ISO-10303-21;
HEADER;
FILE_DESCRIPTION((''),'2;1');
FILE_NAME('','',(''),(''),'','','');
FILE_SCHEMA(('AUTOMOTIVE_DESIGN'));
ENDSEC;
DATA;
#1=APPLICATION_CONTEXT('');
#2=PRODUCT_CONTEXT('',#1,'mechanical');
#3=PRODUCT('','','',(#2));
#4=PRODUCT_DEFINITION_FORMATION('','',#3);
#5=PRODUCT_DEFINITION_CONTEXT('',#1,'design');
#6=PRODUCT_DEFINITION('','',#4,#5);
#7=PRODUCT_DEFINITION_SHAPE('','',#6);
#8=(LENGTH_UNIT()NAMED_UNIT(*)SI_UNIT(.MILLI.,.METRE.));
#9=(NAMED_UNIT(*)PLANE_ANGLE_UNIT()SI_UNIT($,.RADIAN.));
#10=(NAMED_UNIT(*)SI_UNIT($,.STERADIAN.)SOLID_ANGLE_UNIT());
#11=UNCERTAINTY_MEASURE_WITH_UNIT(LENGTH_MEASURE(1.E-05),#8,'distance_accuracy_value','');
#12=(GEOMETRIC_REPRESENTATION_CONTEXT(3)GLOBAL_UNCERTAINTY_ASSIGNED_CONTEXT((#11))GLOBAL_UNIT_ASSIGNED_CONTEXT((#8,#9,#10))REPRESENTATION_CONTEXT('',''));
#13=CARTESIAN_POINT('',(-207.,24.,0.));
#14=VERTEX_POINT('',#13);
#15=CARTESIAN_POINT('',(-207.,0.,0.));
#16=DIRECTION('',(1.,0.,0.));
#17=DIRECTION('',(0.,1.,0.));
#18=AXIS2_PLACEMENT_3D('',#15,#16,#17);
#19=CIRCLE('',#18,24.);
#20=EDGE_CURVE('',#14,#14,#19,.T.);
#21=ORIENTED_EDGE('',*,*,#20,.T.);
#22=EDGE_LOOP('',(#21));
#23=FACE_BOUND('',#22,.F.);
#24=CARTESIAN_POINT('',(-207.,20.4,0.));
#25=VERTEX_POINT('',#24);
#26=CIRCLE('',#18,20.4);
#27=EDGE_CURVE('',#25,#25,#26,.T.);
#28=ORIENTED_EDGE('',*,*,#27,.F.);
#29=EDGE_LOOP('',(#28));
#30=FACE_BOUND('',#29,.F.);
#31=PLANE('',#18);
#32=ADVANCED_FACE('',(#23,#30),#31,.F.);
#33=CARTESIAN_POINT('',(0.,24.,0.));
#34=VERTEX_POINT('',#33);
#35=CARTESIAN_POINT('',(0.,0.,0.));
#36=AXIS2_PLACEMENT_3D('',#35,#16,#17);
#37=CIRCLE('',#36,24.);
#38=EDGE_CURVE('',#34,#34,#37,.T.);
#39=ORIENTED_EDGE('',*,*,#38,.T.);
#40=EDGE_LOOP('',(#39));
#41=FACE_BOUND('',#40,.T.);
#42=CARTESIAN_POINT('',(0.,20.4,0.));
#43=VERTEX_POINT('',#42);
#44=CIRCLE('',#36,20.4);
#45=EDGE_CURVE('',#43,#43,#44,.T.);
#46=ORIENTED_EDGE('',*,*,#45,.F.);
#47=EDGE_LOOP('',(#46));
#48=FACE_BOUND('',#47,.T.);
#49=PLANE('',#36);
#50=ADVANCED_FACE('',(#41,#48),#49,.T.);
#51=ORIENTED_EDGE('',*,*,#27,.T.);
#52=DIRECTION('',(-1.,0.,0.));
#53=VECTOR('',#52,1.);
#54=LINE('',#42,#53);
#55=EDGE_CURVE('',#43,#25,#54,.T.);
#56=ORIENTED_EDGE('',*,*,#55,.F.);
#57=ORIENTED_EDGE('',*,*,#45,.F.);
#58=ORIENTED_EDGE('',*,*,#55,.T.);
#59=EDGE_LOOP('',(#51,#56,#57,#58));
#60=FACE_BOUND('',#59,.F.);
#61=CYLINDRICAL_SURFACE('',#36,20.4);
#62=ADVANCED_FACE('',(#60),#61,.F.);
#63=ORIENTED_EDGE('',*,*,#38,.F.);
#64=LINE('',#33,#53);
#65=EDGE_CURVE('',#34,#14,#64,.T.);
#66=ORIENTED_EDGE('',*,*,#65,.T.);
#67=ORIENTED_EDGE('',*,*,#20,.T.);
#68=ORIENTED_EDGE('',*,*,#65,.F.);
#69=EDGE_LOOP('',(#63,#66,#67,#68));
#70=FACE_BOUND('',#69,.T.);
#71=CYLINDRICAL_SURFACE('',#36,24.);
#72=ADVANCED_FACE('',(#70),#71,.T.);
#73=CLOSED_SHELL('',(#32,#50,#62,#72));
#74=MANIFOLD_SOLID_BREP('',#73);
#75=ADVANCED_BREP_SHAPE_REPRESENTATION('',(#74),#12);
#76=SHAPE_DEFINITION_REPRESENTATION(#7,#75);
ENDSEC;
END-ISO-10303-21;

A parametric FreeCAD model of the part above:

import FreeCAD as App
import Part
import Sketcher
from FreeCAD import Vector
Q = App.Units.Quantity

doc = App.newDocument("Part")
params = doc.addObject("Spreadsheet::Sheet", "Params")
for row, (alias, value) in enumerate([
    ("sketch1_diameter", "48 mm"),
    ("sketch1_diameter2", "40.8 mm"),
    ("pad1_length", "207 mm"),
], start=1):
    params.set(f"A{row}", alias)
    params.set(f"B{row}", "=" + value)
    params.setAlias(f"B{row}", alias)

body = doc.addObject("PartDesign::Body", "Body")

sketch1 = body.newObject("Sketcher::SketchObject", "Sketch")
sketch1.AttachmentSupport = (doc.getObject("YZ_Plane"), [""])
sketch1.MapMode = "FlatFace"
sketch1.addGeometry([
    Part.Circle(Vector(0, 0, 0), Vector(0, 0, 1), 24),
    Part.Circle(Vector(0, 0, 0), Vector(0, 0, 1), 20.4),
], False)
sketch1.addConstraint([
    Sketcher.Constraint("Coincident", 0, 3, -1, 1),
    Sketcher.Constraint("Coincident", 1, 3, -1, 1),
    Sketcher.Constraint("Diameter", 0, Q("48 mm")),
    Sketcher.Constraint("Diameter", 1, Q("40.8 mm")),
])
sketch1.setExpression("Constraints[2]", "Params.sketch1_diameter")
sketch1.setExpression("Constraints[3]", "Params.sketch1_diameter2")
pad1 = body.newObject("PartDesign::Pad", "Pad")
pad1.Profile = sketch1
pad1.setExpression("Length", "Params.pad1_length")
pad1.Reversed = True

doc.recompute()
